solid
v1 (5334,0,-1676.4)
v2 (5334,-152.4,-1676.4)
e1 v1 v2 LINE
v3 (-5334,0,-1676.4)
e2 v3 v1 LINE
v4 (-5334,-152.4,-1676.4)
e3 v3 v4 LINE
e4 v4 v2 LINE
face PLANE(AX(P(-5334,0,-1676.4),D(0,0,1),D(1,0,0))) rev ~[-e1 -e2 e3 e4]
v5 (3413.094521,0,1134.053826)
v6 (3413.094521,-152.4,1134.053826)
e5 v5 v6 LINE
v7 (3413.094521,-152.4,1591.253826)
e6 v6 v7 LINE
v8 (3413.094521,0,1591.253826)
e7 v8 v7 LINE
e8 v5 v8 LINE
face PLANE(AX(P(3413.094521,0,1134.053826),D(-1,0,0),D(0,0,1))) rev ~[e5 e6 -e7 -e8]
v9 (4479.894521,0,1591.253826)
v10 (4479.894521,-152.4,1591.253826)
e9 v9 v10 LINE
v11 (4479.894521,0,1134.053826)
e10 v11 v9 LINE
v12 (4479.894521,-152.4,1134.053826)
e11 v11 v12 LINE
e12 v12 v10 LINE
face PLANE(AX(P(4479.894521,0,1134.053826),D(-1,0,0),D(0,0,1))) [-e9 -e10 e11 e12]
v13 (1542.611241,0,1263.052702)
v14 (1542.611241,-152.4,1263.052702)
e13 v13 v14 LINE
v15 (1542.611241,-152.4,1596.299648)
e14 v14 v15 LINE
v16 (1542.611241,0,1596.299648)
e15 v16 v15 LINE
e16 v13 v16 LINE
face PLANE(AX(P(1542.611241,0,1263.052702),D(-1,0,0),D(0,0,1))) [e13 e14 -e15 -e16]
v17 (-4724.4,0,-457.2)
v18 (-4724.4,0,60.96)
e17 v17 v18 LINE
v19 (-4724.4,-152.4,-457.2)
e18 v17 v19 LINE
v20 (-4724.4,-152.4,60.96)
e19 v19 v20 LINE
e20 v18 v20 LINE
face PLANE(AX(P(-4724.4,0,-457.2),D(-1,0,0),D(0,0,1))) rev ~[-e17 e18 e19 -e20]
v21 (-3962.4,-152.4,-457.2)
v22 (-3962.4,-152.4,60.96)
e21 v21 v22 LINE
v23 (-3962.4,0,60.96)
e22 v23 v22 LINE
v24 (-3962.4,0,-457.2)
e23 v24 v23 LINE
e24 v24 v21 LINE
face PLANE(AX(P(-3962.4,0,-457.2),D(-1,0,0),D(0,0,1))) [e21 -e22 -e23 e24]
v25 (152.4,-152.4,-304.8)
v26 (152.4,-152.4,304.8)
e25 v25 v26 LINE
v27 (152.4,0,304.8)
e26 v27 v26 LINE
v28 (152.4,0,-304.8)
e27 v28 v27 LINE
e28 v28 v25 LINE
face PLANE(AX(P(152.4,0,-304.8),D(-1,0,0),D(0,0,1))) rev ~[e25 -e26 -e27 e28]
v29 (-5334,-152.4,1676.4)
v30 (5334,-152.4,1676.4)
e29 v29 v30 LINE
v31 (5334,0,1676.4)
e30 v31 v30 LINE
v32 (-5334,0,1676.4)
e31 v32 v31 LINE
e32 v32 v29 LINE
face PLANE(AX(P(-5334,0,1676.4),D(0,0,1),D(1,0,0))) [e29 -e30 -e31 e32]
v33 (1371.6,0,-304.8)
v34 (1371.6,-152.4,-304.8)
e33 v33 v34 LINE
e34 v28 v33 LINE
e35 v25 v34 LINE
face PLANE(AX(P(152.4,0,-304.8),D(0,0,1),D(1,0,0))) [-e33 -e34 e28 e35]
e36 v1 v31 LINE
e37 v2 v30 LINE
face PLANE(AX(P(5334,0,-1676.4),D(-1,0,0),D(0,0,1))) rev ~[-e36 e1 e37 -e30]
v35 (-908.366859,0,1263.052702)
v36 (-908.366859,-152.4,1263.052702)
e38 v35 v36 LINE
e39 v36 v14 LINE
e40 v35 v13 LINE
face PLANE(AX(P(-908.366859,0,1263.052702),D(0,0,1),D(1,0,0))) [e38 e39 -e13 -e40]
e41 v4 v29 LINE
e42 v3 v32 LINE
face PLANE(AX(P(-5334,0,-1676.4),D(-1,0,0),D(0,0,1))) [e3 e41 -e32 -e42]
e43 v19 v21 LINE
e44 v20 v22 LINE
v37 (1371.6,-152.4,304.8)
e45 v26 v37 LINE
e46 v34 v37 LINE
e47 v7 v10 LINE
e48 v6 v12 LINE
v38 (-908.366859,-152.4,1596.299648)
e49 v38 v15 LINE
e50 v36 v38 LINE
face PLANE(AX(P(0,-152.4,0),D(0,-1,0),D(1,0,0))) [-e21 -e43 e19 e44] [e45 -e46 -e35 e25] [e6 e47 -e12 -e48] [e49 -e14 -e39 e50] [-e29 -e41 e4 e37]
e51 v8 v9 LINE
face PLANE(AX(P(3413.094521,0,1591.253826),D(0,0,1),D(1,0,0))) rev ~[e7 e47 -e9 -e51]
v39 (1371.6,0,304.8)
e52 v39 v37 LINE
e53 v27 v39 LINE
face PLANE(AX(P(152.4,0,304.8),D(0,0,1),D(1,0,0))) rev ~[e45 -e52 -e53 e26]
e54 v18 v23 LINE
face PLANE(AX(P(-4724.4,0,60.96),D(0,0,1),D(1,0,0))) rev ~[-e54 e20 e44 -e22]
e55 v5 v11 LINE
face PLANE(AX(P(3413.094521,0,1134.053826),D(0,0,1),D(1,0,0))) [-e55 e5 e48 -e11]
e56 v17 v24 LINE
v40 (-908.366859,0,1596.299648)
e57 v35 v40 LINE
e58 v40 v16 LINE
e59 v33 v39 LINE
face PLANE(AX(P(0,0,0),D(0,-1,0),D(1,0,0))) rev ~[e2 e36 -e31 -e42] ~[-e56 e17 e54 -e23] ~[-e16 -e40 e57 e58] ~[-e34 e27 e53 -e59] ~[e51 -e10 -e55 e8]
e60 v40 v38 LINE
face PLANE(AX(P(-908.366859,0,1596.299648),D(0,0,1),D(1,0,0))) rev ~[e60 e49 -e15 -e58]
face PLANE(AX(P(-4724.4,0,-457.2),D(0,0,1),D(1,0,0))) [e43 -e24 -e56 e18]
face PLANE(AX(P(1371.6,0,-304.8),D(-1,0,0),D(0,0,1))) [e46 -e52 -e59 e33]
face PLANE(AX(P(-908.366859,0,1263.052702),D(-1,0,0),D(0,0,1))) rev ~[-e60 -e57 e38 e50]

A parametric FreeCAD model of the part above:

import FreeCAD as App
import Part
import Sketcher
from FreeCAD import Vector
Q = App.Units.Quantity


def add_polygon(sketch, points):
    """Adds a closed chain of lines whose ends are joined by coincident constraints."""
    first, n = sketch.GeometryCount, len(points)
    for a, b in zip(points, points[1:] + points[:1]):
        sketch.addGeometry(Part.LineSegment(App.Vector(*a, 0), App.Vector(*b, 0)), False)
    for i in range(n):
        sketch.addConstraint(Sketcher.Constraint("Coincident", first + i, 2, first + (i + 1) % n, 1))

doc = App.newDocument("Part")
body = doc.addObject("PartDesign::Body", "Body")

# Sketch on XZ plane
sketch1 = body.newObject("Sketcher::SketchObject", "Sketch")
sketch1.AttachmentSupport = (doc.getObject("XZ_Plane"), [""])
sketch1.MapMode = "FlatFace"
add_polygon(sketch1, [(-5334, 1676), (-5334, -1676), (5334, -1676), (5334, 1676)])  # lines 0-3
add_polygon(sketch1, [(-3962, -457), (-4724, -457), (-4724, 61), (-3962, 61)])  # lines 4-7
add_polygon(sketch1, [(1372, -305), (152, -305), (152, 305), (1372, 305)])  # lines 8-11
add_polygon(sketch1, [(1543, 1263), (-908, 1263), (-908, 1596), (1543, 1596)])  # lines 12-15
add_polygon(sketch1, [(4480, 1134), (3413, 1134), (3413, 1591), (4480, 1591)])  # lines 16-19
sketch1.addConstraint([
    Sketcher.Constraint("Vertical", 0),
    Sketcher.Constraint("Horizontal", 1),
    Sketcher.Constraint("Vertical", 2),
    Sketcher.Constraint("Horizontal", 3),
    Sketcher.Constraint("Horizontal", 4),
    Sketcher.Constraint("Vertical", 5),
    Sketcher.Constraint("Horizontal", 6),
    Sketcher.Constraint("Vertical", 7),
    Sketcher.Constraint("Horizontal", 8),
    Sketcher.Constraint("Vertical", 9),
    Sketcher.Constraint("Horizontal", 10),
    Sketcher.Constraint("Vertical", 11),
    Sketcher.Constraint("Horizontal", 12),
    Sketcher.Constraint("Vertical", 13),
    Sketcher.Constraint("Horizontal", 14),
    Sketcher.Constraint("Vertical", 15),
    Sketcher.Constraint("Horizontal", 16),
    Sketcher.Constraint("Vertical", 17),
    Sketcher.Constraint("Horizontal", 18),
    Sketcher.Constraint("Vertical", 19),
    Sketcher.Constraint("Symmetric", 0, 2, 2, 2, -1, 1),
    Sketcher.Constraint("DistanceX", 1, 1, 1, 2, Q("420 in")),
    Sketcher.Constraint("DistanceX", 4, 2, 4, 1, Q("30 in")),
    Sketcher.Constraint("DistanceX", 8, 2, 8, 1, Q("48 in")),
    Sketcher.Constraint("DistanceX", 16, 2, 16, 1, Q("42 in")),
    Sketcher.Constraint("DistanceY", 0, 2, 0, 1, Q("132 in")),
    Sketcher.Constraint("DistanceY", 9, 1, 9, 2, Q("24 in")),
    Sketcher.Constraint("DistanceY", 17, 1, 17, 2, Q("18 in")),
    Sketcher.Constraint("DistanceY", 5, 1, 5, 2, Q("20.4 in")),
    Sketcher.Constraint("DistanceX", 4, 2, -1, 1, Q("186 in")),
    Sketcher.Constraint("DistanceY", 4, 2, -1, 1, Q("18 in")),
    Sketcher.Constraint("DistanceX", -1, 1, 8, 2, Q("6 in")),
    Sketcher.Constraint("DistanceY", 8, 2, -1, 1, Q("12 in")),
    Sketcher.Constraint("DistanceX", 12, 2, 12, 1, Q("2450.9781 mm")),
    Sketcher.Constraint("DistanceX", -1, 1, 16, 2, Q("134.3738 in")),
    Sketcher.Constraint("DistanceY", -1, 1, 12, 2, Q("1263.052702 mm")),
    Sketcher.Constraint("DistanceY", 13, 1, 13, 2, Q("333.246946 mm")),
    Sketcher.Constraint("DistanceX", 12, 2, -1, 1, Q("908.366859 mm")),
    Sketcher.Constraint("DistanceY", 16, 2, 14, 2, Q("462.245822 mm")),
])
pad1 = body.newObject("PartDesign::Pad", "Pad")
pad1.Profile = sketch1
pad1.Length = Q("6 in")

doc.recompute()
